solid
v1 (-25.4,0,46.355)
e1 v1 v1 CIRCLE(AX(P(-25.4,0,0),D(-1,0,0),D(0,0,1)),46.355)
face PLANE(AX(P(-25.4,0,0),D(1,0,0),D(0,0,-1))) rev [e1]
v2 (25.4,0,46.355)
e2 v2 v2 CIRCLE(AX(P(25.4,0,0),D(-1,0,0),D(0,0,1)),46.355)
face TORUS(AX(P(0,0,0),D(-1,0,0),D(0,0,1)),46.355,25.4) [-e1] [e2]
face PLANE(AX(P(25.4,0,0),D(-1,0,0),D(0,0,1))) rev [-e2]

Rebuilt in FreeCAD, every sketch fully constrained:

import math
import FreeCAD as App
import Part
import Sketcher
from FreeCAD import Vector
Q = App.Units.Quantity

doc = App.newDocument("Part")
body = doc.addObject("PartDesign::Body", "Body")

# Sketch on XZ plane
sketch1 = body.newObject("Sketcher::SketchObject", "Sketch")
sketch1.AttachmentSupport = (doc.getObject("XZ_Plane"), [""])
sketch1.MapMode = "FlatFace"
sketch1.addGeometry(Part.LineSegment(Vector(-25, -46, 0), Vector(-25, 0, 0)), False)
sketch1.addGeometry(Part.LineSegment(Vector(-25, 0, 0), Vector(25, 0, 0)), False)
sketch1.addGeometry(Part.LineSegment(Vector(25, 0, 0), Vector(25, -46, 0)), False)
sketch1.addGeometry(Part.ArcOfCircle(Part.Circle(Vector(0, -46, 0), Vector(0, 0, 1), 25), math.radians(180), math.radians(360)), False)
sketch1.addConstraint(Sketcher.Constraint("Coincident", 0, 2, 1, 1))
sketch1.addConstraint(Sketcher.Constraint("Coincident", 1, 2, 2, 1))
sketch1.addConstraint(Sketcher.Constraint("Tangent", 2, 2, 3, 2))
sketch1.addConstraint(Sketcher.Constraint("Tangent", 3, 1, 0, 1))
sketch1.addConstraint(Sketcher.Constraint("Vertical", 0))
sketch1.addConstraint(Sketcher.Constraint("Horizontal", 1))
sketch1.addConstraint(Sketcher.Constraint("Vertical", 2))
sketch1.addConstraint(Sketcher.Constraint("Symmetric", 0, 2, 1, 2, -1, 1))
sketch1.addConstraint(Sketcher.Constraint("Radius", 3, Q("1 in")))
sketch1.addConstraint(Sketcher.Constraint("DistanceY", 0, 1, 0, 2, Q("1.825 in")))
revolution = body.newObject("PartDesign::Revolution", "Revolution")
revolution.Profile = sketch1
revolution.ReferenceAxis = (sketch1, ["H_Axis"])
revolution.Angle = 360

doc.recompute()
